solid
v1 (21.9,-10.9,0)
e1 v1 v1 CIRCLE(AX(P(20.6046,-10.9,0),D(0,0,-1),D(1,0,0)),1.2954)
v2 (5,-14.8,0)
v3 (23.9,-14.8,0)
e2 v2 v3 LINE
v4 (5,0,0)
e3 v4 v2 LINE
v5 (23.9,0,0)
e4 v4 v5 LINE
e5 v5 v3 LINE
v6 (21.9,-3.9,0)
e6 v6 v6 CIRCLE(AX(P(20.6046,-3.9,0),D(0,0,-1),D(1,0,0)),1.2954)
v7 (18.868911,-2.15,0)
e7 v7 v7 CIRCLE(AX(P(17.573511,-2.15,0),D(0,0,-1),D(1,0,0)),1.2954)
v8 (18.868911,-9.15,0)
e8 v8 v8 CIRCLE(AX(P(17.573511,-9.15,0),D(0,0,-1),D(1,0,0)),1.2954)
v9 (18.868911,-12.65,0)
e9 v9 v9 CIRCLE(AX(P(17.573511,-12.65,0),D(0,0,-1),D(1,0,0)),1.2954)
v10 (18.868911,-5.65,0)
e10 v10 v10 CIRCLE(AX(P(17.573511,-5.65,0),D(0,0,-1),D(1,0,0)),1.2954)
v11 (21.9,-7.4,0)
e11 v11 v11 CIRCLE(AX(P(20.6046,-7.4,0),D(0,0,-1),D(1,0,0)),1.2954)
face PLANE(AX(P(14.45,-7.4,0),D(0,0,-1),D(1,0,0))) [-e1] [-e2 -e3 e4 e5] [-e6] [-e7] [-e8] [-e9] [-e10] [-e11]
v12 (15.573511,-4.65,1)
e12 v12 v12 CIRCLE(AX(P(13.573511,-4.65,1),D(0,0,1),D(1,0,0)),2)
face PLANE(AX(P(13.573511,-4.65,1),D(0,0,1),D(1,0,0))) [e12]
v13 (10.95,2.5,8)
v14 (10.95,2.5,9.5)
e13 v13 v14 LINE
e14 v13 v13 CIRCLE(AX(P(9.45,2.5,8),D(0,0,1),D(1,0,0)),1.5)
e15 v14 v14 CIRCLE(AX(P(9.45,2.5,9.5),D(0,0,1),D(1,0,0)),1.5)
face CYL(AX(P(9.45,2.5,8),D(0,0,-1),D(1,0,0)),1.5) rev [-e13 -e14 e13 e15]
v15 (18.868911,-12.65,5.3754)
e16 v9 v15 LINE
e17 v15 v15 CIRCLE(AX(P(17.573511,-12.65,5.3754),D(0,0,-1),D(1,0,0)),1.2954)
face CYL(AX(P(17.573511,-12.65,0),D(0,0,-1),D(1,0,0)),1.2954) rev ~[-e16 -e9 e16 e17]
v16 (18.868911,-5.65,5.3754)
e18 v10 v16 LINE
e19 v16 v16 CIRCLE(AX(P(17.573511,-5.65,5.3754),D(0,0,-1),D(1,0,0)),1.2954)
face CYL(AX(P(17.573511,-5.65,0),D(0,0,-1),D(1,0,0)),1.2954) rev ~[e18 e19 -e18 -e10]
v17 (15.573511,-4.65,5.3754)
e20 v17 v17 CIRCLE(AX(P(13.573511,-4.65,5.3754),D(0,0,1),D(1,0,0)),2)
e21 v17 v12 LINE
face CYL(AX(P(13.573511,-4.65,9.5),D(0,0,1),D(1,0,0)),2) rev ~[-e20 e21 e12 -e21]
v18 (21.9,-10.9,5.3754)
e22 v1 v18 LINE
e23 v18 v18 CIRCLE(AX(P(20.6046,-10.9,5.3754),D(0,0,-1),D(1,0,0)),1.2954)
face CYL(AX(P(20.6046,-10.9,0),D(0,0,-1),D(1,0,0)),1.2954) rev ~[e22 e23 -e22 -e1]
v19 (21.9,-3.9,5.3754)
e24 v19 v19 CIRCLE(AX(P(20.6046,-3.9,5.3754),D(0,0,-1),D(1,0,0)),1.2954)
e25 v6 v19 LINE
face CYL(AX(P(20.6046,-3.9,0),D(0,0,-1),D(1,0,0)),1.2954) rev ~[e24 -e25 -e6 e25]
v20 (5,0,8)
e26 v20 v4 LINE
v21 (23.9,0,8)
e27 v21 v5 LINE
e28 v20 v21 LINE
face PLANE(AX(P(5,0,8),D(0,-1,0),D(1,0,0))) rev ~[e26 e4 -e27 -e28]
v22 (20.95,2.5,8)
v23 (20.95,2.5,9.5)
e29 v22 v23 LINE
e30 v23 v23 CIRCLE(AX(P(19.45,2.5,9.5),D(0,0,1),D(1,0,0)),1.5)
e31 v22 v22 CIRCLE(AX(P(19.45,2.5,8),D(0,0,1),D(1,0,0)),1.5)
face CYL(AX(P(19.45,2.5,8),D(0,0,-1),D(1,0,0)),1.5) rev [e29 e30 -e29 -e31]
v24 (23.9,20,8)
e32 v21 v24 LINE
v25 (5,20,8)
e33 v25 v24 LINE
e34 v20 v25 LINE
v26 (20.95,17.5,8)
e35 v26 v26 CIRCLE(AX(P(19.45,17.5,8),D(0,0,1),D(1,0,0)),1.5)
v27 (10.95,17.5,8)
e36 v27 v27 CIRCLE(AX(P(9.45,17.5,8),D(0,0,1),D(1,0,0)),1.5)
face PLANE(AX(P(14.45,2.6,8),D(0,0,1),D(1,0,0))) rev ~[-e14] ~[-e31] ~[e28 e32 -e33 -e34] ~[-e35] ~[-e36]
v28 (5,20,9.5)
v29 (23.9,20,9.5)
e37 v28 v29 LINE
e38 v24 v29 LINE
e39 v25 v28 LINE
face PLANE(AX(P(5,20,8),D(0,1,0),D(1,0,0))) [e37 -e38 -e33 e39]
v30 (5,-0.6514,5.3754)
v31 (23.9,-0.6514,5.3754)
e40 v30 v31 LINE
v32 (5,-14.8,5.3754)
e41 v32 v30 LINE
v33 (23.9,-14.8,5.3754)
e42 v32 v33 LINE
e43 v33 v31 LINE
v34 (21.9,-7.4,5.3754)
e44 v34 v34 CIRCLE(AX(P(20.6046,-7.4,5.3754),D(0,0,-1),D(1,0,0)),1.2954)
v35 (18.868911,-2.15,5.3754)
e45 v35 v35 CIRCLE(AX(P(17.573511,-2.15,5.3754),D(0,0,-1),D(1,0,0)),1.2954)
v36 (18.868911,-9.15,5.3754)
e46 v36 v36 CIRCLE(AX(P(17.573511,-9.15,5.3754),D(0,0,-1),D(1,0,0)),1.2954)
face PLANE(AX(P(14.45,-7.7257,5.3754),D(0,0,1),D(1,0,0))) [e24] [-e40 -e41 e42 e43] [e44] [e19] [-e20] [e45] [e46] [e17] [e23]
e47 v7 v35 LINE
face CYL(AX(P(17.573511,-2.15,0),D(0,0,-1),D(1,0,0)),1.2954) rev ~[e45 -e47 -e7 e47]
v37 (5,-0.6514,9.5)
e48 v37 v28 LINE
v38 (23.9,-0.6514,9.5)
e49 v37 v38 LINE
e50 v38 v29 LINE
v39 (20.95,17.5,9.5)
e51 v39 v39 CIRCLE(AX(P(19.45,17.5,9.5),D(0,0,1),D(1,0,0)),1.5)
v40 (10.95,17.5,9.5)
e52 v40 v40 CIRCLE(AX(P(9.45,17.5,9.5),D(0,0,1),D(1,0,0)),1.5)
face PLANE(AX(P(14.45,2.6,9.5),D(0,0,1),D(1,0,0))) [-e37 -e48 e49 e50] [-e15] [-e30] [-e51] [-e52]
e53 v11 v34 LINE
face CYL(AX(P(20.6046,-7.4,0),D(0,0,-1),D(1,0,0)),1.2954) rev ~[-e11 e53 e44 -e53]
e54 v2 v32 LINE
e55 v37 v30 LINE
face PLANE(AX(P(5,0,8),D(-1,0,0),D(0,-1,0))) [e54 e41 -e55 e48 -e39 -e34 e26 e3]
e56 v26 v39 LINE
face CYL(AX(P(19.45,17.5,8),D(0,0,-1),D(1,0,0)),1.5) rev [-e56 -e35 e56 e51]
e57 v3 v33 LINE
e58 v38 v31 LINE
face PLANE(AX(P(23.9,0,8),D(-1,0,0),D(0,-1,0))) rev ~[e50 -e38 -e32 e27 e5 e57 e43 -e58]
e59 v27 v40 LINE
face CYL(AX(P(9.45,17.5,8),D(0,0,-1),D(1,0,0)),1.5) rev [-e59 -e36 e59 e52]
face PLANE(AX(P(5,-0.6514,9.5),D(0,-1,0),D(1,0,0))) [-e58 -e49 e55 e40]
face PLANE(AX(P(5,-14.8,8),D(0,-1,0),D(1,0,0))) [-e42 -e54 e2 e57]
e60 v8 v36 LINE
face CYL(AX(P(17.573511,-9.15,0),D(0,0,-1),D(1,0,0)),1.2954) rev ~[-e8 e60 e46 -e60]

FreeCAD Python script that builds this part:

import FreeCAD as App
import Part
import Sketcher
from FreeCAD import Vector
Q = App.Units.Quantity

doc = App.newDocument("Part")
body = doc.addObject("PartDesign::Body", "Body")

# Sketch on XY plane
sketch1 = doc.addObject("Sketcher::SketchObject", "Sketch")
body.addObject(sketch1)
sketch1.AttachmentSupport = (doc.XY_Plane, [""])
sketch1.MapMode = "FlatFace"
sketch1.AttachmentOffset = App.Placement(Vector(0, 0, 8), App.Rotation())
sketch1.addGeometry([
    Part.LineSegment(Vector(5, 20, 0), Vector(5, -14.8, 0)),  # 0
    Part.LineSegment(Vector(5, -14.8, 0), Vector(23.9, -14.8, 0)),  # 1
    Part.LineSegment(Vector(23.9, -14.8, 0), Vector(23.9, 20, 0)),  # 2
    Part.LineSegment(Vector(23.9, 20, 0), Vector(5, 20, 0)),  # 3
    Part.Circle(Vector(9.4, 2.5, 0), Vector(0, 0, 1), 1.5),  # 4
    Part.Circle(Vector(19.4, 2.5, 0), Vector(0, 0, 1), 1.5),  # 5
    Part.Circle(Vector(9.4, 17.5, 0), Vector(0, 0, 1), 1.5),  # 6
    Part.Circle(Vector(19.4, 17.5, 0), Vector(0, 0, 1), 1.5),  # 7
], False)
sketch1.addConstraint([
    Sketcher.Constraint("Coincident", 0, 2, 1, 1),
    Sketcher.Constraint("Coincident", 1, 2, 2, 1),
    Sketcher.Constraint("Coincident", 2, 2, 3, 1),
    Sketcher.Constraint("Coincident", 3, 2, 0, 1),
    Sketcher.Constraint("Vertical", 0),
    Sketcher.Constraint("Horizontal", 1),
    Sketcher.Constraint("Vertical", 2),
    Sketcher.Constraint("Horizontal", 3),
    Sketcher.Constraint("Equal", 4, 5),
    Sketcher.Constraint("Equal", 5, 6),
    Sketcher.Constraint("Equal", 6, 7),
    Sketcher.Constraint("Horizontal", 4, 3, 5, 3),
    Sketcher.Constraint("Horizontal", 6, 3, 7, 3),
    Sketcher.Constraint("Vertical", 4, 3, 6, 3),
    Sketcher.Constraint("Vertical", 5, 3, 7, 3),
    Sketcher.Constraint("Diameter", 4, Q("3 mm")),
    Sketcher.Constraint("DistanceX", 1, 1, 1, 2, Q("18.9 mm")),
    Sketcher.Constraint("DistanceY", 0, 2, 0, 1, Q("34.8 mm")),
    Sketcher.Constraint("DistanceX", -1, 1, 0, 2, Q("5 mm")),
    Sketcher.Constraint("DistanceY", -1, 1, 2, 2, Q("20 mm")),
    Sketcher.Constraint("DistanceX", 4, 3, 5, 3, Q("10 mm")),
    Sketcher.Constraint("DistanceY", 4, 3, 6, 3, Q("15 mm")),
    Sketcher.Constraint("DistanceY", -1, 1, 4, 3, Q("2.5 mm")),
    Sketcher.Constraint("DistanceX", -1, 1, 4, 3, Q("9.45 mm")),
])
pad1 = doc.addObject("PartDesign::Pad", "Pad")
body.addObject(pad1)
pad1.Profile = sketch1
pad1.Length = 1.5

# Sketch on XY plane
sketch2 = doc.addObject("Sketcher::SketchObject", "Sketch001")
body.addObject(sketch2)
sketch2.AttachmentSupport = (doc.XY_Plane, [""])
sketch2.MapMode = "FlatFace"
sketch2.AttachmentOffset = App.Placement(Vector(0, 0, 8), App.Rotation())
sketch2.addGeometry([
    Part.LineSegment(Vector(5, -15, 0), Vector(5, 0, 0)),
    Part.LineSegment(Vector(5, 0, 0), Vector(24, 0, 0)),
    Part.LineSegment(Vector(24, 0, 0), Vector(24, -15, 0)),
    Part.LineSegment(Vector(24, -15, 0), Vector(5, -15, 0)),
], False)
sketch2.addConstraint([
    Sketcher.Constraint("Coincident", 0, 2, 1, 1),
    Sketcher.Constraint("Coincident", 1, 2, 2, 1),
    Sketcher.Constraint("Coincident", 2, 2, 3, 1),
    Sketcher.Constraint("Coincident", 3, 2, 0, 1),
    Sketcher.Constraint("Vertical", 0),
    Sketcher.Constraint("Horizontal", 1),
    Sketcher.Constraint("Vertical", 2),
    Sketcher.Constraint("Horizontal", 3),
    Sketcher.Constraint("PointOnObject", 0, 2, -1),
    Sketcher.Constraint("DistanceX", 1, 1, 1, 2, Q("18.9 mm")),
    Sketcher.Constraint("DistanceY", 0, 1, 0, 2, Q("14.8 mm")),
    Sketcher.Constraint("DistanceX", -1, 1, 0, 2, Q("5 mm")),
])
pad2 = doc.addObject("PartDesign::Pad", "Pad001")
body.addObject(pad2)
pad2.Profile = sketch2
pad2.Length = 8
pad2.Reversed = True

# Sketch on XY plane
sketch3 = doc.addObject("Sketcher::SketchObject", "Sketch002")
body.addObject(sketch3)
sketch3.AttachmentSupport = (doc.XY_Plane, [""])
sketch3.MapMode = "FlatFace"
sketch3.addGeometry([
    Part.Circle(Vector(17.6, -2.1, 0), Vector(0, 0, 1), 1.3),  # 0
    Part.Circle(Vector(20.6, -3.9, 0), Vector(0, 0, 1), 1.3),  # 1
    Part.Circle(Vector(17.6, -5.7, 0), Vector(0, 0, 1), 1.3),  # 2
    Part.Circle(Vector(17.6, -9.2, 0), Vector(0, 0, 1), 1.3),  # 3
    Part.Circle(Vector(20.6, -10.9, 0), Vector(0, 0, 1), 1.3),  # 4
    Part.Circle(Vector(20.6, -7.4, 0), Vector(0, 0, 1), 1.3),  # 5
    Part.Circle(Vector(17.6, -12.7, 0), Vector(0, 0, 1), 1.3),  # 6
], False)
sketch3.addConstraint([
    Sketcher.Constraint("Equal", 0, 1),
    Sketcher.Constraint("Equal", 1, 2),
    Sketcher.Constraint("Equal", 2, 3),
    Sketcher.Constraint("Equal", 3, 4),
    Sketcher.Constraint("Equal", 4, 5),
    Sketcher.Constraint("Equal", 5, 6),
    Sketcher.Constraint("Vertical", 0, 3, 2, 3),
    Sketcher.Constraint("Vertical", 2, 3, 3, 3),
    Sketcher.Constraint("Vertical", 1, 3, 4, 3),
    Sketcher.Constraint("Vertical", 4, 3, 5, 3),
    Sketcher.Constraint("Vertical", 3, 3, 6, 3),
    Sketcher.Constraint("DistanceY", 3, 3, 0, 3, Q("7 mm")),
    Sketcher.Constraint("DistanceY", 4, 3, 1, 3, Q("7 mm")),
    Sketcher.Constraint("DistanceY", 6, 3, 2, 3, Q("7 mm")),
    Sketcher.Constraint("Diameter", 0, Q("2.5908 mm")),
    Sketcher.Constraint("DistanceY", 1, 3, -1, 1, Q("3.9 mm")),
    Sketcher.Constraint("DistanceY", 5, 3, -1, 1, Q("7.4 mm")),
    Sketcher.Constraint("DistanceY", 2, 3, 0, 3, Q("3.5 mm")),
    Sketcher.Constraint("DistanceY", 0, 3, -1, 1, Q("2.15 mm")),
    Sketcher.Constraint("DistanceX", -1, 1, 1, 3, Q("20.6046 mm")),
    Sketcher.Constraint("DistanceX", -1, 1, 0, 3, Q("17.573511 mm")),
])
pocket1 = doc.addObject("PartDesign::Pocket", "Pocket")
body.addObject(pocket1)
pocket1.Profile = sketch3
pocket1.Type = "ThroughAll"
pocket1.Reversed = True

# Sketch on XY plane
sketch4 = doc.addObject("Sketcher::SketchObject", "Sketch003")
body.addObject(sketch4)
sketch4.AttachmentSupport = (doc.XY_Plane, [""])
sketch4.MapMode = "FlatFace"
sketch4.AttachmentOffset = App.Placement(Vector(0, 0, 9.5), App.Rotation())
sketch4.addGeometry(Part.Circle(Vector(13.6, -4.7, 0), Vector(0, 0, 1), 2), False)
sketch4.addConstraint([
    Sketcher.Constraint("Diameter", 0, Q("4 mm")),
    Sketcher.Constraint("DistanceY", 0, 3, -1, 1, Q("4.65 mm")),
    Sketcher.Constraint("DistanceX", -1, 1, 0, 3, Q("13.573511 mm")),
])
pocket2 = doc.addObject("PartDesign::Pocket", "Pocket001")
body.addObject(pocket2)
pocket2.Profile = sketch4
pocket2.Length = 8.5

# Sketch on XY plane
sketch5 = doc.addObject("Sketcher::SketchObject", "Sketch004")
body.addObject(sketch5)
sketch5.AttachmentSupport = (doc.XY_Plane, [""])
sketch5.MapMode = "FlatFace"
sketch5.AttachmentOffset = App.Placement(Vector(0, 0, 1), App.Rotation())
sketch5.addGeometry(Part.Circle(Vector(9.4, 2.5, 0), Vector(0, 0, 1), 1.5), False)
sketch5.addConstraint([
    Sketcher.Constraint("Diameter", 0, Q("3 mm")),
    Sketcher.Constraint("DistanceY", -1, 1, 0, 3, Q("2.5 mm")),
    Sketcher.Constraint("DistanceX", -1, 1, 0, 3, Q("9.45 mm")),
])
pocket3 = doc.addObject("PartDesign::Pocket", "Pocket002")
body.addObject(pocket3)
pocket3.Profile = sketch5
pocket3.Type = "ThroughAll"

# Sketch on XY plane
sketch6 = doc.addObject("Sketcher::SketchObject", "Sketch005")
body.addObject(sketch6)
sketch6.AttachmentSupport = (doc.XY_Plane, [""])
sketch6.MapMode = "FlatFace"
sketch6.AttachmentOffset = App.Placement(Vector(0, 0, 9.5), App.Rotation())
sketch6.addGeometry([
    Part.LineSegment(Vector(5, -1, 0), Vector(5, -15, 0)),
    Part.LineSegment(Vector(5, -15, 0), Vector(24, -15, 0)),
    Part.LineSegment(Vector(24, -15, 0), Vector(24, -1, 0)),
    Part.LineSegment(Vector(24, -1, 0), Vector(5, -1, 0)),
], False)
sketch6.addConstraint([
    Sketcher.Constraint("Coincident", 0, 2, 1, 1),
    Sketcher.Constraint("Coincident", 1, 2, 2, 1),
    Sketcher.Constraint("Coincident", 2, 2, 3, 1),
    Sketcher.Constraint("Coincident", 3, 2, 0, 1),
    Sketcher.Constraint("Vertical", 0),
    Sketcher.Constraint("Horizontal", 1),
    Sketcher.Constraint("Vertical", 2),
    Sketcher.Constraint("Horizontal", 3),
    Sketcher.Constraint("DistanceX", 1, 1, 1, 2, Q("18.9 mm")),
    Sketcher.Constraint("DistanceX", -1, 1, 0, 2, Q("5 mm")),
    Sketcher.Constraint("DistanceY", 0, 2, -1, 1, Q("14.8 mm")),
    Sketcher.Constraint("DistanceY", 0, 2, 0, 1, Q("14.1486 mm")),
])
pocket4 = doc.addObject("PartDesign::Pocket", "Pocket003")
body.addObject(pocket4)
pocket4.Profile = sketch6
pocket4.Length = 4.1246

doc.recompute()
